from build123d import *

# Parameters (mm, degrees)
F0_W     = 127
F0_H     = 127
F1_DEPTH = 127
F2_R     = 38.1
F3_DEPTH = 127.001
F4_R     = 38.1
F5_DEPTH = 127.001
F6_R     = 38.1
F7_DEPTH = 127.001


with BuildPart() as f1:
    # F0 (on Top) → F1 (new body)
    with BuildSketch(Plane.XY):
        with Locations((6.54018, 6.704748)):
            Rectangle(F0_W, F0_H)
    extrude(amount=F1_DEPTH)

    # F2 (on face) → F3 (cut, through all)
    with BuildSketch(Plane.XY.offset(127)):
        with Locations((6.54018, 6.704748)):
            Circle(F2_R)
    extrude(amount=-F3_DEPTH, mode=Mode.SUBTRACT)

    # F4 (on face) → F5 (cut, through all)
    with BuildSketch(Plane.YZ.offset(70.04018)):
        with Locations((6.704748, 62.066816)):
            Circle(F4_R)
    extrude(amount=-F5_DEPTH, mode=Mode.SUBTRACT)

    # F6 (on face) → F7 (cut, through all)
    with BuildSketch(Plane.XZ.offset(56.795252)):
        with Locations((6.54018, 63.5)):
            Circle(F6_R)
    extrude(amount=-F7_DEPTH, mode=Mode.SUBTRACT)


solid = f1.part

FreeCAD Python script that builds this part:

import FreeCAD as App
import Part
import Sketcher
from FreeCAD import Vector
Q = App.Units.Quantity

doc = App.newDocument("Part")
body = doc.addObject("PartDesign::Body", "Body")

sketch1 = body.newObject("Sketcher::SketchObject", "Sketch")
sketch1.AttachmentSupport = (doc.getObject("XY_Plane"), [""])
sketch1.MapMode = "FlatFace"
sketch1.addGeometry([
    Part.LineSegment(Vector(-57, 70, 0), Vector(-57, -57, 0)),
    Part.LineSegment(Vector(-57, -57, 0), Vector(70, -57, 0)),
    Part.LineSegment(Vector(70, -57, 0), Vector(70, 70, 0)),
    Part.LineSegment(Vector(70, 70, 0), Vector(-57, 70, 0)),
], False)
sketch1.addConstraint([
    Sketcher.Constraint("Coincident", 0, 2, 1, 1),
    Sketcher.Constraint("Coincident", 1, 2, 2, 1),
    Sketcher.Constraint("Coincident", 2, 2, 3, 1),
    Sketcher.Constraint("Coincident", 3, 2, 0, 1),
    Sketcher.Constraint("Vertical", 0),
    Sketcher.Constraint("Horizontal", 1),
    Sketcher.Constraint("Vertical", 2),
    Sketcher.Constraint("Horizontal", 3),
    Sketcher.Constraint("Equal", 3, 0),
    Sketcher.Constraint("DistanceX", 1, 1, 1, 2, Q("5 in")),
    Sketcher.Constraint("DistanceX", 0, 2, -1, 1, Q("56.95982 mm")),
    Sketcher.Constraint("DistanceY", 0, 2, -1, 1, Q("56.795252 mm")),
])
pad1 = body.newObject("PartDesign::Pad", "Pad")
pad1.Profile = sketch1
pad1.Length = Q("5 in")

sketch2 = body.newObject("Sketcher::SketchObject", "Sketch001")
sketch2.AttachmentSupport = (doc.getObject("XY_Plane"), [""])
sketch2.MapMode = "FlatFace"
sketch2.AttachmentOffset = App.Placement(Vector(0, 0, 5 * 25.4), App.Rotation())
sketch2.addGeometry(Part.Circle(Vector(7, 7, 0), Vector(0, 0, 1), 38), False)
sketch2.addConstraint([
    Sketcher.Constraint("Diameter", 0, Q("3 in")),
    Sketcher.Constraint("DistanceX", -1, 1, 0, 3, Q("6.54018 mm")),
    Sketcher.Constraint("DistanceY", -1, 1, 0, 3, Q("6.704748 mm")),
])
pocket1 = body.newObject("PartDesign::Pocket", "Pocket")
pocket1.Profile = sketch2
pocket1.Type = "ThroughAll"

sketch3 = body.newObject("Sketcher::SketchObject", "Sketch002")
sketch3.AttachmentSupport = (doc.getObject("YZ_Plane"), [""])
sketch3.MapMode = "FlatFace"
sketch3.AttachmentOffset = App.Placement(Vector(0, 0, 70.04018), App.Rotation())
sketch3.addGeometry(Part.Circle(Vector(7, 62, 0), Vector(0, 0, 1), 38), False)
sketch3.addConstraint([
    Sketcher.Constraint("Diameter", 0, Q("3 in")),
    Sketcher.Constraint("DistanceX", -1, 1, 0, 3, Q("6.704748 mm")),
    Sketcher.Constraint("DistanceY", -1, 1, 0, 3, Q("62.066816 mm")),
])
pocket2 = body.newObject("PartDesign::Pocket", "Pocket001")
pocket2.Profile = sketch3
pocket2.Type = "ThroughAll"

sketch4 = body.newObject("Sketcher::SketchObject", "Sketch003")
sketch4.AttachmentSupport = (doc.getObject("XZ_Plane"), [""])
sketch4.MapMode = "FlatFace"
sketch4.AttachmentOffset = App.Placement(Vector(0, 0, 56.795252), App.Rotation())
sketch4.addGeometry(Part.Circle(Vector(7, 64, 0), Vector(0, 0, 1), 38), False)
sketch4.addConstraint([
    Sketcher.Constraint("Diameter", 0, Q("3 in")),
    Sketcher.Constraint("DistanceY", -1, 1, 0, 3, Q("2.5 in")),
    Sketcher.Constraint("DistanceX", -1, 1, 0, 3, Q("6.54018 mm")),
])
pocket3 = body.newObject("PartDesign::Pocket", "Pocket002")
pocket3.Profile = sketch4
pocket3.Type = "ThroughAll"

doc.recompute()
